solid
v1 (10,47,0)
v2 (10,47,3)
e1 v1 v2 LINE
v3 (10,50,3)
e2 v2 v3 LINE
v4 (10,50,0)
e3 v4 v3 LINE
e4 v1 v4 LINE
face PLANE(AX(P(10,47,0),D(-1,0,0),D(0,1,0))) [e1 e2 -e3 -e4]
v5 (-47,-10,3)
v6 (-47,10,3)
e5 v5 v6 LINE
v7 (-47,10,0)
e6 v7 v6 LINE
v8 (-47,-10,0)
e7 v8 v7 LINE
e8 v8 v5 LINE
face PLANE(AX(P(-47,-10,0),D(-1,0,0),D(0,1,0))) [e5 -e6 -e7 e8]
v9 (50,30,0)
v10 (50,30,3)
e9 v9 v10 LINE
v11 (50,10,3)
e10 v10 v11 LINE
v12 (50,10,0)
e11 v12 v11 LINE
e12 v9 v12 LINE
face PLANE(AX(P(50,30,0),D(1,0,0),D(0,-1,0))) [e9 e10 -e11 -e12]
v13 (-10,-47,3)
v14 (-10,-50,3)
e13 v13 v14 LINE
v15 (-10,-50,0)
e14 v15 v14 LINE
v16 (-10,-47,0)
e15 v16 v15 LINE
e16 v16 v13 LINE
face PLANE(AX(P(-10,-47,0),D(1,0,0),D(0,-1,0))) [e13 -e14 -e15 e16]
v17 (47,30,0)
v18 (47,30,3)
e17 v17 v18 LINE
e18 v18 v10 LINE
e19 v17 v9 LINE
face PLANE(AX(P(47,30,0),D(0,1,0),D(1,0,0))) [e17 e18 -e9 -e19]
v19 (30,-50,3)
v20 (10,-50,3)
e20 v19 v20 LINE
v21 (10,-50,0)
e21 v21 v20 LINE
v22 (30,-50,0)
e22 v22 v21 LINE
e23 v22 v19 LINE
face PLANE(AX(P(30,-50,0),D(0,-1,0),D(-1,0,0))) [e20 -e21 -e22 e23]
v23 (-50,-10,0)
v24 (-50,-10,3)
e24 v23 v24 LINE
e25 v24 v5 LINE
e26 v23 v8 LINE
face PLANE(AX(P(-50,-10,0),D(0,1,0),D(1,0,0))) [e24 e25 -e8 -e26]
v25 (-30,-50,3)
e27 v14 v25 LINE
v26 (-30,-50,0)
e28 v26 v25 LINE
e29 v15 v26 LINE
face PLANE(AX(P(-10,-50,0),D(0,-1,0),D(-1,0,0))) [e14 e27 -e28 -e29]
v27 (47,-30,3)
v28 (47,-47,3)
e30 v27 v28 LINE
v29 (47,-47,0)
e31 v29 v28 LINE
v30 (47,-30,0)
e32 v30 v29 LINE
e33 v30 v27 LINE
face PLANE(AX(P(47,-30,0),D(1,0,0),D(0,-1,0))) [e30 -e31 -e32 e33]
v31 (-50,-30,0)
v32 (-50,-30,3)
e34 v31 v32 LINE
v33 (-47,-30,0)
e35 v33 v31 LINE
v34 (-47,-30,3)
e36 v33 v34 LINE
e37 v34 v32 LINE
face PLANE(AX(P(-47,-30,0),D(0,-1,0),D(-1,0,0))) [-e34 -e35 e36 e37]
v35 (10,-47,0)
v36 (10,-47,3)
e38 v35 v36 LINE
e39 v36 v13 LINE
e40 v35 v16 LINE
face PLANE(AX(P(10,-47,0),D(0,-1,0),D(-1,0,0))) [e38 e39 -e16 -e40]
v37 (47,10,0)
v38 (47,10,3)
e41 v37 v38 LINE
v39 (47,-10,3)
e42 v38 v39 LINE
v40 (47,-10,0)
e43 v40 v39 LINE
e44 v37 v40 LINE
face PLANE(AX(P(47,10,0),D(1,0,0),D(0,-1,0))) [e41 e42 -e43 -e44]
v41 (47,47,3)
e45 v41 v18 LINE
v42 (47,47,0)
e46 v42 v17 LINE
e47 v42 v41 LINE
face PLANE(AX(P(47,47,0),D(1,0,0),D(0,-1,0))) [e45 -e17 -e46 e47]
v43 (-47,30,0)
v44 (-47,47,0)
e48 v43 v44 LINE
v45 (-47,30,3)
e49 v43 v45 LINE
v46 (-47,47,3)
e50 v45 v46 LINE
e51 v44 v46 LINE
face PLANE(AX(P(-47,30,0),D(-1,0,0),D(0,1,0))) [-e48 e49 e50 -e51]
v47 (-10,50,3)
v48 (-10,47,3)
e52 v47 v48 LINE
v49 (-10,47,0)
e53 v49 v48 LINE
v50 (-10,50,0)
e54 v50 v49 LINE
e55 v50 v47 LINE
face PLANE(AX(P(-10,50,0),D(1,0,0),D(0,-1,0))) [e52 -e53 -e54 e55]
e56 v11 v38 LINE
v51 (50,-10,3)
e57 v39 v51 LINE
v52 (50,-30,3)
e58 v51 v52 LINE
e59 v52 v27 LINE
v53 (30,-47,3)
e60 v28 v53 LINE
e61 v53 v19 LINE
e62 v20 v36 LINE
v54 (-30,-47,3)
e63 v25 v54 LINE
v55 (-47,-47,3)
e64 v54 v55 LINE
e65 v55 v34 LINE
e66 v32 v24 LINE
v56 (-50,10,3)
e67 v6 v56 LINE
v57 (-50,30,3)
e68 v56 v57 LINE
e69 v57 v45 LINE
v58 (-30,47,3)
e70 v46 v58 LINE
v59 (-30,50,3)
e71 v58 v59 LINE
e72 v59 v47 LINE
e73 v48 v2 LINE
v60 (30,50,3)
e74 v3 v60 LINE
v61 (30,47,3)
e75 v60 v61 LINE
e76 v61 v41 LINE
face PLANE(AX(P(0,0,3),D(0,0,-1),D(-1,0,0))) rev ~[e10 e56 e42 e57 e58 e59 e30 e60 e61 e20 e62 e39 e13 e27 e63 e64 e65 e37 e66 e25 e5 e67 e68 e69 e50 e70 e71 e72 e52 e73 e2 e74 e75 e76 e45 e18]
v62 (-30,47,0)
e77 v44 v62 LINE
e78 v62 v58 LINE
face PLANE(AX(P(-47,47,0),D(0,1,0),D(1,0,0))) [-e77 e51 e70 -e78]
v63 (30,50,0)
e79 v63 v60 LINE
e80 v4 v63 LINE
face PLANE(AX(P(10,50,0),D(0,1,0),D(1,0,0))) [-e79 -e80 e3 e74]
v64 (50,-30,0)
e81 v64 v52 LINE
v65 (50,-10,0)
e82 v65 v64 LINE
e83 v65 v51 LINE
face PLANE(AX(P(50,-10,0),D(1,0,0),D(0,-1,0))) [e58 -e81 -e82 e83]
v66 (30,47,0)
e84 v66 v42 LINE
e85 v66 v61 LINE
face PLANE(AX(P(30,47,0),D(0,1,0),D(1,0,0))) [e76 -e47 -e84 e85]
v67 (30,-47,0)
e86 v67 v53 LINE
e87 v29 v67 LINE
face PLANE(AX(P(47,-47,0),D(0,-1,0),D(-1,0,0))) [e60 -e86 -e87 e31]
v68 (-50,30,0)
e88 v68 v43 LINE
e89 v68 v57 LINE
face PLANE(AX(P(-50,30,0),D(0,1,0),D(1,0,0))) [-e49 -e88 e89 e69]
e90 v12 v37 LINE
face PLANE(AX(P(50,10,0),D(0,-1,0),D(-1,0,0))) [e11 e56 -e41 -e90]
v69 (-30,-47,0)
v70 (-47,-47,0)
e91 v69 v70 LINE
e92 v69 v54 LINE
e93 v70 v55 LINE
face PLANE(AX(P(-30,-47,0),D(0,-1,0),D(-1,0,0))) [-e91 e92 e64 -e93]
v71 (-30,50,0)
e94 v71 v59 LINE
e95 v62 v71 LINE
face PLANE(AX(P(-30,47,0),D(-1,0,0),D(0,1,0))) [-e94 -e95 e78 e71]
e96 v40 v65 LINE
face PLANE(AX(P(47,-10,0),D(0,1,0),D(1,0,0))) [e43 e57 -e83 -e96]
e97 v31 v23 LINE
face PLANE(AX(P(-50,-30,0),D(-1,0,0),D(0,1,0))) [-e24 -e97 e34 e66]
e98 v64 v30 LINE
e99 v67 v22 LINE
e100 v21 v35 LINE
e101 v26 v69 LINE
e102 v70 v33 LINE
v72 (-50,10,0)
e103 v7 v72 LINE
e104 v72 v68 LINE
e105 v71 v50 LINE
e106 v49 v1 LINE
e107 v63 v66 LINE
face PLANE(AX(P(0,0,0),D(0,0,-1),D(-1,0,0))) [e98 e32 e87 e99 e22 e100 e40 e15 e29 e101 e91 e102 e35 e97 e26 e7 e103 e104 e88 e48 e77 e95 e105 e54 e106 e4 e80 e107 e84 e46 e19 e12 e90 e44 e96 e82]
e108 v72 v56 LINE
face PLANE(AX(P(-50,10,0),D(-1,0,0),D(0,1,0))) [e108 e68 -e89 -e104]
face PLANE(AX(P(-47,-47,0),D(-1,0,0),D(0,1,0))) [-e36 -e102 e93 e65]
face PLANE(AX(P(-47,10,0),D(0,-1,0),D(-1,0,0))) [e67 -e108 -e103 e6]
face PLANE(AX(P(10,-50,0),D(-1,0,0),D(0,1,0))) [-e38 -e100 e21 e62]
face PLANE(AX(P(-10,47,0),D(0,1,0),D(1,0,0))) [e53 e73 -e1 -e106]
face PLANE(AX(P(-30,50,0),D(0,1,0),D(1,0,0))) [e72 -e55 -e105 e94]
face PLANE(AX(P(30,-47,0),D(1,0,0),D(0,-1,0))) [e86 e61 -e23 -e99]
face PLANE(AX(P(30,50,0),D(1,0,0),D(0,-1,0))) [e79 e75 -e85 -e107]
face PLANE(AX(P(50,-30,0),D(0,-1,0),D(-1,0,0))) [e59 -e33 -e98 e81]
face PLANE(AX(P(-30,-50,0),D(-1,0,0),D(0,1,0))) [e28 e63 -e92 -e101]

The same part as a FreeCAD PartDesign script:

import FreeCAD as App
import Part
import Sketcher

V = App.Vector
Q = App.Units.Quantity


def add_polygon(sketch, points):
    """Adds a closed chain of lines whose ends are joined by coincident constraints."""
    first, n = sketch.GeometryCount, len(points)
    for a, b in zip(points, points[1:] + points[:1]):
        sketch.addGeometry(Part.LineSegment(App.Vector(*a, 0), App.Vector(*b, 0)), False)
    for i in range(n):
        sketch.addConstraint(Sketcher.Constraint("Coincident", first + i, 2, first + (i + 1) % n, 1))

doc = App.newDocument("Part")
params = doc.addObject("Spreadsheet::Sheet", "Params")
for row, (alias, value) in enumerate([
    ("sketch1_width", "20 mm"),
    ("sketch1_width2", "17 mm"),
    ("sketch1_width3", "3 mm"),
    ("pad1_length", "3 mm"),
], start=1):
    params.set(f"A{row}", alias)
    params.set(f"B{row}", "=" + value)
    params.setAlias(f"B{row}", alias)

body = doc.addObject("PartDesign::Body", "Body")

# Sketch on XY plane
sketch1 = doc.addObject("Sketcher::SketchObject", "Sketch")
body.addObject(sketch1)
sketch1.AttachmentSupport = (doc.XY_Plane, [""])
sketch1.MapMode = "FlatFace"
add_polygon(sketch1, [(10, 47), (-10, 47), (-10, 50), (-30, 50), (-30, 47), (-47, 47), (-47, 30), (-50, 30), (-50, 10), (-47, 10), (-47, -10), (-50, -10), (-50, -30), (-47, -30), (-47, -47), (-30, -47), (-30, -50), (-10, -50), (-10, -47), (10, -47), (10, -50), (30, -50), (30, -47), (47, -47), (47, -30), (50, -30), (50, -10), (47, -10), (47, 10), (50, 10), (50, 30), (47, 30), (47, 47), (30, 47), (30, 50), (10, 50)])  # lines 0-35
sketch1.addConstraint([
    Sketcher.Constraint("Horizontal", 0),
    Sketcher.Constraint("Vertical", 1),
    Sketcher.Constraint("Horizontal", 2),
    Sketcher.Constraint("Vertical", 3),
    Sketcher.Constraint("Horizontal", 4),
    Sketcher.Constraint("Vertical", 5),
    Sketcher.Constraint("Horizontal", 6),
    Sketcher.Constraint("Vertical", 7),
    Sketcher.Constraint("Horizontal", 8),
    Sketcher.Constraint("Vertical", 9),
    Sketcher.Constraint("Horizontal", 10),
    Sketcher.Constraint("Vertical", 11),
    Sketcher.Constraint("Horizontal", 12),
    Sketcher.Constraint("Vertical", 13),
    Sketcher.Constraint("Horizontal", 14),
    Sketcher.Constraint("Vertical", 15),
    Sketcher.Constraint("Horizontal", 16),
    Sketcher.Constraint("Vertical", 17),
    Sketcher.Constraint("Horizontal", 18),
    Sketcher.Constraint("Vertical", 19),
    Sketcher.Constraint("Horizontal", 20),
    Sketcher.Constraint("Vertical", 21),
    Sketcher.Constraint("Horizontal", 22),
    Sketcher.Constraint("Vertical", 23),
    Sketcher.Constraint("Horizontal", 24),
    Sketcher.Constraint("Vertical", 25),
    Sketcher.Constraint("Horizontal", 26),
    Sketcher.Constraint("Vertical", 27),
    Sketcher.Constraint("Horizontal", 28),
    Sketcher.Constraint("Vertical", 29),
    Sketcher.Constraint("Horizontal", 30),
    Sketcher.Constraint("Vertical", 31),
    Sketcher.Constraint("Horizontal", 32),
    Sketcher.Constraint("Vertical", 33),
    Sketcher.Constraint("Horizontal", 34),
    Sketcher.Constraint("Vertical", 35),
    Sketcher.Constraint("Symmetric", 0, 2, 18, 2, -1, 1),
    Sketcher.Constraint("Symmetric", 2, 2, 20, 2, -1, 1),
    Sketcher.Constraint("Symmetric", 4, 2, 22, 2, -1, 1),
    Sketcher.Constraint("Symmetric", 6, 2, 24, 2, -1, 1),
    Sketcher.Constraint("Symmetric", 8, 2, 26, 2, -1, 1),
    Sketcher.Constraint("Symmetric", 10, 2, 28, 2, -1, 1),
    Sketcher.Constraint("Symmetric", 12, 2, 30, 2, -1, 1),
    Sketcher.Constraint("Symmetric", 14, 2, 32, 2, -1, 1),
    Sketcher.Constraint("Symmetric", 16, 2, 34, 2, -1, 1),
    Sketcher.Constraint("Symmetric", 16, 2, 19, 2, -2),
    Sketcher.Constraint("Symmetric", 14, 2, 21, 2, -2),
    Sketcher.Constraint("Symmetric", 12, 2, 23, 2, -2),
    Sketcher.Constraint("Symmetric", 10, 2, 25, 2, -2),
    Sketcher.Constraint("Horizontal", 0, 2, 3, 2),
    Sketcher.Constraint("Vertical", 5, 2, 8, 2),
    Sketcher.Constraint("Equal", 0, 2),
    Sketcher.Constraint("Equal", 30, 1),
    Sketcher.Constraint("Equal", 32, 5),
    Sketcher.Constraint("Equal", 34, 7),
    Sketcher.Constraint("Equal", 7, 9),
    Sketcher.Constraint("DistanceX", 0, 2, 0, 1, Q("20 mm")),
    Sketcher.Constraint("DistanceX", 4, 2, 4, 1, Q("17 mm")),
    Sketcher.Constraint("DistanceX", 6, 2, 6, 1, Q("3 mm")),
])
sketch1.setExpression("Constraints[92]", "Params.sketch1_width")
sketch1.setExpression("Constraints[93]", "Params.sketch1_width2")
sketch1.setExpression("Constraints[94]", "Params.sketch1_width3")
pad1 = doc.addObject("PartDesign::Pad", "Pad")
body.addObject(pad1)
pad1.Profile = sketch1
pad1.setExpression("Length", "Params.pad1_length")

doc.recompute()
